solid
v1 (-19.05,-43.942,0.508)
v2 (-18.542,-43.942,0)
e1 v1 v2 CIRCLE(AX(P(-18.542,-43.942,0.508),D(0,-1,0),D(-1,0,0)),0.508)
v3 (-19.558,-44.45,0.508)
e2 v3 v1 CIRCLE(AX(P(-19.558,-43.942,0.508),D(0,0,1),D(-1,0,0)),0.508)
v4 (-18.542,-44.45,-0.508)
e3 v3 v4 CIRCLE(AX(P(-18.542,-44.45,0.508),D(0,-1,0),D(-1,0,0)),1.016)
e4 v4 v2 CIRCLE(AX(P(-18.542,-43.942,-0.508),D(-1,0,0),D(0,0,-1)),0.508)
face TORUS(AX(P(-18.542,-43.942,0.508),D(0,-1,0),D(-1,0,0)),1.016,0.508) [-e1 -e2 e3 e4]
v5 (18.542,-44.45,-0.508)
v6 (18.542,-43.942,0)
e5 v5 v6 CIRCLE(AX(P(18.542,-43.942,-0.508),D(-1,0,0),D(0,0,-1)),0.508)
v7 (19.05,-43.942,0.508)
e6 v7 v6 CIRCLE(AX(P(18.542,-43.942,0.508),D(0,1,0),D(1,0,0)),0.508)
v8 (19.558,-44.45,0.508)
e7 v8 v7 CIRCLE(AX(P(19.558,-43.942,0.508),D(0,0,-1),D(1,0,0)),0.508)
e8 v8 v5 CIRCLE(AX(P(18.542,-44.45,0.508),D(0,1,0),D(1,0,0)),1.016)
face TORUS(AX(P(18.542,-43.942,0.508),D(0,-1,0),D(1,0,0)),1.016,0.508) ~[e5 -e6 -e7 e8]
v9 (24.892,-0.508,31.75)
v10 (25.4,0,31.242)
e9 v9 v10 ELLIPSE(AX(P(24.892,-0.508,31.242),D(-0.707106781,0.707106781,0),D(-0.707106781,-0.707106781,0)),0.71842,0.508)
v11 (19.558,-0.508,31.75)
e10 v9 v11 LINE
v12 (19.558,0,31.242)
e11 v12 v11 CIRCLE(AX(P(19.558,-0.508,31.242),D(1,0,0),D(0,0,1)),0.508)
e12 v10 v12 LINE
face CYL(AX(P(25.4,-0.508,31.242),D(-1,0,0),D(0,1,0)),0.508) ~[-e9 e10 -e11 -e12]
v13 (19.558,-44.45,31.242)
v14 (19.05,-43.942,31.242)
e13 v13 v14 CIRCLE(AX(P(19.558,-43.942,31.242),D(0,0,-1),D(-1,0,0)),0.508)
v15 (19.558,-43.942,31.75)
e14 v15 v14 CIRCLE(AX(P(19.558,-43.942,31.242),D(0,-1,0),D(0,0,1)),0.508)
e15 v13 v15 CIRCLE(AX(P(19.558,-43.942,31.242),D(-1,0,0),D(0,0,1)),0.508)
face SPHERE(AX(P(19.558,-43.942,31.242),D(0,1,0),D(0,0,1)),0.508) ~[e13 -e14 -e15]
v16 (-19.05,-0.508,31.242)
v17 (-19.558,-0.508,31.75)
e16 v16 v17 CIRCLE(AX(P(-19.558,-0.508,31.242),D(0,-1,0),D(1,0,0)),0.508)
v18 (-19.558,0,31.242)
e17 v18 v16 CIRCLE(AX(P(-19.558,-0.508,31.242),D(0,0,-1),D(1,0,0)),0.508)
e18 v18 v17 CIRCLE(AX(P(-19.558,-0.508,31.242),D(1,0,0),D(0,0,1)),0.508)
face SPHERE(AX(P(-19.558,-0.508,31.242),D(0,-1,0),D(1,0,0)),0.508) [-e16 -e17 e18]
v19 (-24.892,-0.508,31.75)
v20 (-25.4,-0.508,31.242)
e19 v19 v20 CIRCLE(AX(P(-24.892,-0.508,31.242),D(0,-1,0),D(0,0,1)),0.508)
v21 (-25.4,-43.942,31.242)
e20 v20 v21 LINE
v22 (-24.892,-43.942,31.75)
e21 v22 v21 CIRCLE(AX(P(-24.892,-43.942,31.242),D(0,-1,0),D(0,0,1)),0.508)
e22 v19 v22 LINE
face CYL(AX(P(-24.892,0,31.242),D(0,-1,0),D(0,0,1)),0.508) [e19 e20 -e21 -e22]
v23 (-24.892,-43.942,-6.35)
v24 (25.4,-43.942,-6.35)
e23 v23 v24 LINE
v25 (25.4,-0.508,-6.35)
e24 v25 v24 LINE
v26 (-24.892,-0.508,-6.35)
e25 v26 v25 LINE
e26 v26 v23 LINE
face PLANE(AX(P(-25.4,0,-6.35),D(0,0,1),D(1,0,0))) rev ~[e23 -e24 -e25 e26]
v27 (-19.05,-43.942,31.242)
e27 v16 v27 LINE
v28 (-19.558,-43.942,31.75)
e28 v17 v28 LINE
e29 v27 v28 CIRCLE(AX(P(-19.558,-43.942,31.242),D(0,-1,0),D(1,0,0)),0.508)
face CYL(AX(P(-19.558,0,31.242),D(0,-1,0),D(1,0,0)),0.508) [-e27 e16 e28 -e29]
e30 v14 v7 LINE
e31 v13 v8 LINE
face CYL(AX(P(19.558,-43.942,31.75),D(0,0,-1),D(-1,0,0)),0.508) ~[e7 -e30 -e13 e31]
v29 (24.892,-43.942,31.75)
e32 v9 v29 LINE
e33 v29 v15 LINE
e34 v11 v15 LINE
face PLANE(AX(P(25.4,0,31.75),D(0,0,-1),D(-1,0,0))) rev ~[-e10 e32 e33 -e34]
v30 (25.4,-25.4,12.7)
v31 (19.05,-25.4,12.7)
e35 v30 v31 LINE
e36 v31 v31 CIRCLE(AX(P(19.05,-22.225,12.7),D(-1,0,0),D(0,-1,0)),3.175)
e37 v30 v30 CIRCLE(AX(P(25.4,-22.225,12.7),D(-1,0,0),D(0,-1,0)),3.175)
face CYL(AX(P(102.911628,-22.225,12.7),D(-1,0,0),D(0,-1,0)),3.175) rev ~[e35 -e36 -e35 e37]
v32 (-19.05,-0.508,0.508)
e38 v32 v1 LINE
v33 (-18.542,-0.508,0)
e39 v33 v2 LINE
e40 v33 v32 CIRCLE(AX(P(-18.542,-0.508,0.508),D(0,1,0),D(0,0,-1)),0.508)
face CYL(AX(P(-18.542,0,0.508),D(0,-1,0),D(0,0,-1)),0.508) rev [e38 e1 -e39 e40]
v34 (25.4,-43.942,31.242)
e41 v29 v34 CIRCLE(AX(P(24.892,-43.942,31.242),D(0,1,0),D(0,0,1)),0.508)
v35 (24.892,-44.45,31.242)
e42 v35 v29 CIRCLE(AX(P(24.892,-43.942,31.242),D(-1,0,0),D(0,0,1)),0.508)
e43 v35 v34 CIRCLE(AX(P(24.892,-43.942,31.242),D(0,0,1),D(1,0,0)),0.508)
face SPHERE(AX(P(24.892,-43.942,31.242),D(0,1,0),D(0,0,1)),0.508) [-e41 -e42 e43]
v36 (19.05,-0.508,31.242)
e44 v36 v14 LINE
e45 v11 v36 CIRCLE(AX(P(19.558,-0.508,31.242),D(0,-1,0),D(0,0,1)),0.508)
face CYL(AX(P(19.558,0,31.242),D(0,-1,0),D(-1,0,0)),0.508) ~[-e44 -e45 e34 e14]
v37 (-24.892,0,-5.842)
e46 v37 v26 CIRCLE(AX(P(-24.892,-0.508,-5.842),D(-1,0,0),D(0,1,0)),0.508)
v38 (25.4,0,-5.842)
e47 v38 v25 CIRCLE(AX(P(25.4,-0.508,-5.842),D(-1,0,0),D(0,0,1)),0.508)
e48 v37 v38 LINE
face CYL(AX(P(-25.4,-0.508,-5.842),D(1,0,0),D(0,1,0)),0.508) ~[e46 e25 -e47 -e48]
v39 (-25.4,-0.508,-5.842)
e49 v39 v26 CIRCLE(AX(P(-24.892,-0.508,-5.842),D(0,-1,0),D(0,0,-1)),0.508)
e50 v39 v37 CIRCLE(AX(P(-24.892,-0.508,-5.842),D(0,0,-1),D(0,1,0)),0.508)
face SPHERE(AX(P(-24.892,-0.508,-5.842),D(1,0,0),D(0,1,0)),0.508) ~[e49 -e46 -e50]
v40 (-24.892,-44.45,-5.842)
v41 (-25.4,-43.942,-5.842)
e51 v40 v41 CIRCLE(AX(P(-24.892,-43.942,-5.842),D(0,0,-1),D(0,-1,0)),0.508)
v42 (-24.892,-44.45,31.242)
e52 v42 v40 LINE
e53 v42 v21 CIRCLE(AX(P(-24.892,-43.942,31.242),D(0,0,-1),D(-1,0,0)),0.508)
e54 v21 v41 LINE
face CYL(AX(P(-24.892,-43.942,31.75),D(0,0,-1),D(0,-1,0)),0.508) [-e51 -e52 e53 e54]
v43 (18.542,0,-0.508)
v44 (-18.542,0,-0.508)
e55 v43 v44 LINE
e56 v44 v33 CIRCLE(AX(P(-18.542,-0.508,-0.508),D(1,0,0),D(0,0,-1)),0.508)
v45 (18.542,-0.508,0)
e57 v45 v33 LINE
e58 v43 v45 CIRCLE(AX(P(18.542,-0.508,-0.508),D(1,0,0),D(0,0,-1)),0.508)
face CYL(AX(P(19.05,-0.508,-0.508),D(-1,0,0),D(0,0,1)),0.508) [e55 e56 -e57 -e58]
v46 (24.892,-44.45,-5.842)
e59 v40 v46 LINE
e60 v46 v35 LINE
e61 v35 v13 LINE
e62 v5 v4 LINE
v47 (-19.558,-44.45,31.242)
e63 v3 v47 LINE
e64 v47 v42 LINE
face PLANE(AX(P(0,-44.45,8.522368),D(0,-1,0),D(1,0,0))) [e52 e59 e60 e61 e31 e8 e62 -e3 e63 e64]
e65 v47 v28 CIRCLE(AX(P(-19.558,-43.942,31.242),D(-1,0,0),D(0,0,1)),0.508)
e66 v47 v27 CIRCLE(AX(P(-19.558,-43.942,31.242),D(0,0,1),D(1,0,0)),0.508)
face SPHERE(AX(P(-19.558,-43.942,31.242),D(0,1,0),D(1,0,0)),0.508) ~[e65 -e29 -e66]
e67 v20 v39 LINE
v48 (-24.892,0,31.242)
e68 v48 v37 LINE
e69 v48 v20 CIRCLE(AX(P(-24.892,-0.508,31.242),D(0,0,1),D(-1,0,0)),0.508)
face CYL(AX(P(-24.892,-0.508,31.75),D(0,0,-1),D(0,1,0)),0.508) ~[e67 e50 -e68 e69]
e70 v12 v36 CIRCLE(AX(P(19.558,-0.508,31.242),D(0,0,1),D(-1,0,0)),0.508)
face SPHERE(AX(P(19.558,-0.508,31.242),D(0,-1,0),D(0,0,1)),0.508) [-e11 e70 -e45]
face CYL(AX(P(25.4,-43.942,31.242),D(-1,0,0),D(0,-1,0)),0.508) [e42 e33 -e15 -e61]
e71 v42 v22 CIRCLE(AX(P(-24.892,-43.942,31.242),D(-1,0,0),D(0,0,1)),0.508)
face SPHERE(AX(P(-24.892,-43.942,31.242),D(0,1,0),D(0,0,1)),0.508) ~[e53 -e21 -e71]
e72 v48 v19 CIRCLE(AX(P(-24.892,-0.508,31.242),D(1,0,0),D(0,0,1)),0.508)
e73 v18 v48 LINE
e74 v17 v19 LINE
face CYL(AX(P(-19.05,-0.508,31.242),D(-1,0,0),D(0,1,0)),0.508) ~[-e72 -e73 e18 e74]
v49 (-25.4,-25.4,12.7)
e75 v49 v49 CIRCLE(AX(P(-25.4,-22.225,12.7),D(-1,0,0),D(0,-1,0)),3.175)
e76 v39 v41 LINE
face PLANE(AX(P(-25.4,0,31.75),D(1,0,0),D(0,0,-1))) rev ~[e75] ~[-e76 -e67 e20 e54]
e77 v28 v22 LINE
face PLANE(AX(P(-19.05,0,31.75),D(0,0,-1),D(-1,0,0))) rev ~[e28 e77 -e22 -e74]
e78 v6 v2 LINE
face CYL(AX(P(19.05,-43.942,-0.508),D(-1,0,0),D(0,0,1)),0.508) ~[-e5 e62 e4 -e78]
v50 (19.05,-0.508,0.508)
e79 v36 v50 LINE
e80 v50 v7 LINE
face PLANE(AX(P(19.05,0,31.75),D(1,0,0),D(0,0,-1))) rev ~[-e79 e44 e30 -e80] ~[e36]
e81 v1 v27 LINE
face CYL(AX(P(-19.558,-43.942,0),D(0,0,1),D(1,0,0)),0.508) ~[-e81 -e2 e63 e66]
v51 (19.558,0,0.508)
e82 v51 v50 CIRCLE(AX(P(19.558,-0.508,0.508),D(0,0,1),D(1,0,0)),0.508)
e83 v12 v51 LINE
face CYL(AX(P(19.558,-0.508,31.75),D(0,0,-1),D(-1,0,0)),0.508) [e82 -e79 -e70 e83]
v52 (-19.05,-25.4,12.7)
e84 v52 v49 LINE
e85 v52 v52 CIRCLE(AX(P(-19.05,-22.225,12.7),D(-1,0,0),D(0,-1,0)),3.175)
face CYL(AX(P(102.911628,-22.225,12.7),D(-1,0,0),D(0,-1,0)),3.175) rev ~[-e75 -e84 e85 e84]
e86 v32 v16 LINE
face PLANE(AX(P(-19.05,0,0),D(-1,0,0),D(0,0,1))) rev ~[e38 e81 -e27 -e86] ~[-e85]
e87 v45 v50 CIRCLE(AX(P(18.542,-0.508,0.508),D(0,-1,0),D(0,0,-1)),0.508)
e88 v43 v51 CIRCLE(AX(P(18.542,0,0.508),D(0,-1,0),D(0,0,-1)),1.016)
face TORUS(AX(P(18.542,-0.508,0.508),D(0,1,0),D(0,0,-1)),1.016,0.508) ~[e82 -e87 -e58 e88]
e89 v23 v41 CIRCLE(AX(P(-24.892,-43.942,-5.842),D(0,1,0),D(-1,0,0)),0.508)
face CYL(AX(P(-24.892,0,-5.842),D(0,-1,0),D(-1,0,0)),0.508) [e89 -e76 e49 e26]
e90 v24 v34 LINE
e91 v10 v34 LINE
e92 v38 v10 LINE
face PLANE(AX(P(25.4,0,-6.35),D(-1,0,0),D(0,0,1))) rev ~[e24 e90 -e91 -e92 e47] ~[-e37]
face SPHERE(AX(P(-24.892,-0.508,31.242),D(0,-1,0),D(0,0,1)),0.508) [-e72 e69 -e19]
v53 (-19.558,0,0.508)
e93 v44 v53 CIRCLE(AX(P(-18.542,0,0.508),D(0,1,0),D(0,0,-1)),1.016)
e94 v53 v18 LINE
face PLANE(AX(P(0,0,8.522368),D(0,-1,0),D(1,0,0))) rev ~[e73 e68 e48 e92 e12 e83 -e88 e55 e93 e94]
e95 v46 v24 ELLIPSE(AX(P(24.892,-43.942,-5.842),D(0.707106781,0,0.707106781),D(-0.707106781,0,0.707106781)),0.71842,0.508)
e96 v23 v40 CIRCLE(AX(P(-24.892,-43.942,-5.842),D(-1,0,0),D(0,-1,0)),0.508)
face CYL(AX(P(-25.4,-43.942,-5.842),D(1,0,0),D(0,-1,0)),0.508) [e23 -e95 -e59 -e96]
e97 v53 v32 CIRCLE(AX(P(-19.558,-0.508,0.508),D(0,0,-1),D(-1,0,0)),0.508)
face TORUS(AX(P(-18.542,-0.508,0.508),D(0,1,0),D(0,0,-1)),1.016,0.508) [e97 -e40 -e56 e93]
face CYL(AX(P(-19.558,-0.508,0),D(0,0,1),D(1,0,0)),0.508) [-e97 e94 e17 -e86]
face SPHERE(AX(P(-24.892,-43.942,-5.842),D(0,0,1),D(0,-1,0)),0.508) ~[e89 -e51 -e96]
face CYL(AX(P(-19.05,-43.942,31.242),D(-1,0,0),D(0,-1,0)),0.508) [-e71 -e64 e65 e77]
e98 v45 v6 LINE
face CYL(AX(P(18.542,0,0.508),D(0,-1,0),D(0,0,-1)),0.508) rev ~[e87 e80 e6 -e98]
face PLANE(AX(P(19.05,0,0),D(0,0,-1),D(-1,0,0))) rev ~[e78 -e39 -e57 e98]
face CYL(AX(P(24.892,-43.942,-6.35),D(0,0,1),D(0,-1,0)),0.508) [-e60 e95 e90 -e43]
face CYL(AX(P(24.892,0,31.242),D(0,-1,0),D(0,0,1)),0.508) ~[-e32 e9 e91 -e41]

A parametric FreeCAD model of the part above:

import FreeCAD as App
import Part
import Sketcher
from FreeCAD import Vector
Q = App.Units.Quantity


def edges_at(feature, points):
    """Names of the edges that pass closest to the given points."""
    edges = feature.Shape.Edges
    near = lambda p: min(range(len(edges)), key=lambda i: edges[i].distToShape(Part.Vertex(*p))[0])
    return sorted({f"Edge{near(p) + 1}" for p in points})


def add_polygon(sketch, points):
    """Adds a closed chain of lines whose ends are joined by coincident constraints."""
    first, n = sketch.GeometryCount, len(points)
    for a, b in zip(points, points[1:] + points[:1]):
        sketch.addGeometry(Part.LineSegment(App.Vector(*a, 0), App.Vector(*b, 0)), False)
    for i in range(n):
        sketch.addConstraint(Sketcher.Constraint("Coincident", first + i, 2, first + (i + 1) % n, 1))

doc = App.newDocument("Part")
body = doc.addObject("PartDesign::Body", "Body")

# Sketch on XZ plane
sketch1 = doc.addObject("Sketcher::SketchObject", "Sketch")
body.addObject(sketch1)
sketch1.AttachmentSupport = (doc.XZ_Plane, [""])
sketch1.MapMode = "FlatFace"
add_polygon(sketch1, [(19.05, 0), (-19.05, 0), (-19.05, 31.75), (-25.4, 31.75), (-25.4, -6.35), (25.4, -6.35), (25.4, 31.75), (19.05, 31.75)])  # lines 0-7
sketch1.addConstraint(Sketcher.Constraint("Horizontal", 0))
sketch1.addConstraint(Sketcher.Constraint("Vertical", 1))
sketch1.addConstraint(Sketcher.Constraint("Horizontal", 2))
sketch1.addConstraint(Sketcher.Constraint("Vertical", 3))
sketch1.addConstraint(Sketcher.Constraint("Horizontal", 4))
sketch1.addConstraint(Sketcher.Constraint("Vertical", 5))
sketch1.addConstraint(Sketcher.Constraint("Horizontal", 6))
sketch1.addConstraint(Sketcher.Constraint("Vertical", 7))
sketch1.addConstraint(Sketcher.Constraint("Symmetric", 0, 2, 7, 2, -1, 1))
sketch1.addConstraint(Sketcher.Constraint("Symmetric", 2, 2, 5, 2, -2))
sketch1.addConstraint(Sketcher.Constraint("Equal", 0, 3))
sketch1.addConstraint(Sketcher.Constraint("DistanceX", 4, 1, 4, 2, Q("2 in")))
sketch1.addConstraint(Sketcher.Constraint("DistanceX", 0, 2, 0, 1, Q("1.5 in")))
sketch1.addConstraint(Sketcher.Constraint("DistanceY", 1, 1, 1, 2, Q("1.25 in")))
pad1 = doc.addObject("PartDesign::Pad", "Pad")
body.addObject(pad1)
pad1.Profile = sketch1
pad1.Length = Q("1.75 in")

# Sketch on YZ plane
sketch2 = doc.addObject("Sketcher::SketchObject", "Sketch001")
body.addObject(sketch2)
sketch2.AttachmentSupport = (doc.YZ_Plane, [""])
sketch2.MapMode = "FlatFace"
sketch2.AttachmentOffset = App.Placement(Vector(0, 0, 1 * 25.4), App.Rotation())
sketch2.addGeometry(Part.Circle(Vector(-22.225, 12.7, 0), Vector(0, 0, 1), 3.175), False)
sketch2.addConstraint(Sketcher.Constraint("Diameter", 0, Q("0.25 in")))
sketch2.addConstraint(Sketcher.Constraint("DistanceY", -1, 1, 0, 3, Q("0.5 in")))
sketch2.addConstraint(Sketcher.Constraint("DistanceX", 0, 3, -1, 1, Q("0.875 in")))
doc.recompute()
hole = doc.addObject("PartDesign::Hole", "Hole")
body.addObject(hole)
hole.Profile = sketch2
hole.ThreadType = "None"
hole.Diameter = Q("0.25 in")
hole.DepthType = "ThroughAll"
doc.recompute()

fillet = doc.addObject("PartDesign::Fillet", "Fillet")
body.addObject(fillet)
fillet.Base = (hole, edges_at(hole, [
    (-19.05, -22.225, 31.75),
    (19.05, -22.225, 31.75),
    (25.4, -22.225, 31.75),
    (22.225, -44.45, 31.75),
    (22.225, 0, 31.75),
    (25.4, -44.45, 12.7),
    (19.05, -44.45, 15.875),
    (0, -44.45, 0),
    (19.05, -22.225, 0),
    (-19.05, -22.225, 0),
    (0, 0, 0),
    (-19.05, -44.45, 15.875),
    (-19.05, 0, 15.875),
    (-25.4, -22.225, 31.75),
    (-22.225, 0, 31.75),
    (-22.225, -44.45, 31.75),
    (-25.4, -44.45, 12.7),
    (0, -44.45, -6.35),
    (0, 0, -6.35),
    (-25.4, 0, 12.7),
    (19.05, 0, 15.875),
    (-25.4, -22.225, -6.35),
]))
fillet.Radius = Q("0.02 in")

doc.recompute()
